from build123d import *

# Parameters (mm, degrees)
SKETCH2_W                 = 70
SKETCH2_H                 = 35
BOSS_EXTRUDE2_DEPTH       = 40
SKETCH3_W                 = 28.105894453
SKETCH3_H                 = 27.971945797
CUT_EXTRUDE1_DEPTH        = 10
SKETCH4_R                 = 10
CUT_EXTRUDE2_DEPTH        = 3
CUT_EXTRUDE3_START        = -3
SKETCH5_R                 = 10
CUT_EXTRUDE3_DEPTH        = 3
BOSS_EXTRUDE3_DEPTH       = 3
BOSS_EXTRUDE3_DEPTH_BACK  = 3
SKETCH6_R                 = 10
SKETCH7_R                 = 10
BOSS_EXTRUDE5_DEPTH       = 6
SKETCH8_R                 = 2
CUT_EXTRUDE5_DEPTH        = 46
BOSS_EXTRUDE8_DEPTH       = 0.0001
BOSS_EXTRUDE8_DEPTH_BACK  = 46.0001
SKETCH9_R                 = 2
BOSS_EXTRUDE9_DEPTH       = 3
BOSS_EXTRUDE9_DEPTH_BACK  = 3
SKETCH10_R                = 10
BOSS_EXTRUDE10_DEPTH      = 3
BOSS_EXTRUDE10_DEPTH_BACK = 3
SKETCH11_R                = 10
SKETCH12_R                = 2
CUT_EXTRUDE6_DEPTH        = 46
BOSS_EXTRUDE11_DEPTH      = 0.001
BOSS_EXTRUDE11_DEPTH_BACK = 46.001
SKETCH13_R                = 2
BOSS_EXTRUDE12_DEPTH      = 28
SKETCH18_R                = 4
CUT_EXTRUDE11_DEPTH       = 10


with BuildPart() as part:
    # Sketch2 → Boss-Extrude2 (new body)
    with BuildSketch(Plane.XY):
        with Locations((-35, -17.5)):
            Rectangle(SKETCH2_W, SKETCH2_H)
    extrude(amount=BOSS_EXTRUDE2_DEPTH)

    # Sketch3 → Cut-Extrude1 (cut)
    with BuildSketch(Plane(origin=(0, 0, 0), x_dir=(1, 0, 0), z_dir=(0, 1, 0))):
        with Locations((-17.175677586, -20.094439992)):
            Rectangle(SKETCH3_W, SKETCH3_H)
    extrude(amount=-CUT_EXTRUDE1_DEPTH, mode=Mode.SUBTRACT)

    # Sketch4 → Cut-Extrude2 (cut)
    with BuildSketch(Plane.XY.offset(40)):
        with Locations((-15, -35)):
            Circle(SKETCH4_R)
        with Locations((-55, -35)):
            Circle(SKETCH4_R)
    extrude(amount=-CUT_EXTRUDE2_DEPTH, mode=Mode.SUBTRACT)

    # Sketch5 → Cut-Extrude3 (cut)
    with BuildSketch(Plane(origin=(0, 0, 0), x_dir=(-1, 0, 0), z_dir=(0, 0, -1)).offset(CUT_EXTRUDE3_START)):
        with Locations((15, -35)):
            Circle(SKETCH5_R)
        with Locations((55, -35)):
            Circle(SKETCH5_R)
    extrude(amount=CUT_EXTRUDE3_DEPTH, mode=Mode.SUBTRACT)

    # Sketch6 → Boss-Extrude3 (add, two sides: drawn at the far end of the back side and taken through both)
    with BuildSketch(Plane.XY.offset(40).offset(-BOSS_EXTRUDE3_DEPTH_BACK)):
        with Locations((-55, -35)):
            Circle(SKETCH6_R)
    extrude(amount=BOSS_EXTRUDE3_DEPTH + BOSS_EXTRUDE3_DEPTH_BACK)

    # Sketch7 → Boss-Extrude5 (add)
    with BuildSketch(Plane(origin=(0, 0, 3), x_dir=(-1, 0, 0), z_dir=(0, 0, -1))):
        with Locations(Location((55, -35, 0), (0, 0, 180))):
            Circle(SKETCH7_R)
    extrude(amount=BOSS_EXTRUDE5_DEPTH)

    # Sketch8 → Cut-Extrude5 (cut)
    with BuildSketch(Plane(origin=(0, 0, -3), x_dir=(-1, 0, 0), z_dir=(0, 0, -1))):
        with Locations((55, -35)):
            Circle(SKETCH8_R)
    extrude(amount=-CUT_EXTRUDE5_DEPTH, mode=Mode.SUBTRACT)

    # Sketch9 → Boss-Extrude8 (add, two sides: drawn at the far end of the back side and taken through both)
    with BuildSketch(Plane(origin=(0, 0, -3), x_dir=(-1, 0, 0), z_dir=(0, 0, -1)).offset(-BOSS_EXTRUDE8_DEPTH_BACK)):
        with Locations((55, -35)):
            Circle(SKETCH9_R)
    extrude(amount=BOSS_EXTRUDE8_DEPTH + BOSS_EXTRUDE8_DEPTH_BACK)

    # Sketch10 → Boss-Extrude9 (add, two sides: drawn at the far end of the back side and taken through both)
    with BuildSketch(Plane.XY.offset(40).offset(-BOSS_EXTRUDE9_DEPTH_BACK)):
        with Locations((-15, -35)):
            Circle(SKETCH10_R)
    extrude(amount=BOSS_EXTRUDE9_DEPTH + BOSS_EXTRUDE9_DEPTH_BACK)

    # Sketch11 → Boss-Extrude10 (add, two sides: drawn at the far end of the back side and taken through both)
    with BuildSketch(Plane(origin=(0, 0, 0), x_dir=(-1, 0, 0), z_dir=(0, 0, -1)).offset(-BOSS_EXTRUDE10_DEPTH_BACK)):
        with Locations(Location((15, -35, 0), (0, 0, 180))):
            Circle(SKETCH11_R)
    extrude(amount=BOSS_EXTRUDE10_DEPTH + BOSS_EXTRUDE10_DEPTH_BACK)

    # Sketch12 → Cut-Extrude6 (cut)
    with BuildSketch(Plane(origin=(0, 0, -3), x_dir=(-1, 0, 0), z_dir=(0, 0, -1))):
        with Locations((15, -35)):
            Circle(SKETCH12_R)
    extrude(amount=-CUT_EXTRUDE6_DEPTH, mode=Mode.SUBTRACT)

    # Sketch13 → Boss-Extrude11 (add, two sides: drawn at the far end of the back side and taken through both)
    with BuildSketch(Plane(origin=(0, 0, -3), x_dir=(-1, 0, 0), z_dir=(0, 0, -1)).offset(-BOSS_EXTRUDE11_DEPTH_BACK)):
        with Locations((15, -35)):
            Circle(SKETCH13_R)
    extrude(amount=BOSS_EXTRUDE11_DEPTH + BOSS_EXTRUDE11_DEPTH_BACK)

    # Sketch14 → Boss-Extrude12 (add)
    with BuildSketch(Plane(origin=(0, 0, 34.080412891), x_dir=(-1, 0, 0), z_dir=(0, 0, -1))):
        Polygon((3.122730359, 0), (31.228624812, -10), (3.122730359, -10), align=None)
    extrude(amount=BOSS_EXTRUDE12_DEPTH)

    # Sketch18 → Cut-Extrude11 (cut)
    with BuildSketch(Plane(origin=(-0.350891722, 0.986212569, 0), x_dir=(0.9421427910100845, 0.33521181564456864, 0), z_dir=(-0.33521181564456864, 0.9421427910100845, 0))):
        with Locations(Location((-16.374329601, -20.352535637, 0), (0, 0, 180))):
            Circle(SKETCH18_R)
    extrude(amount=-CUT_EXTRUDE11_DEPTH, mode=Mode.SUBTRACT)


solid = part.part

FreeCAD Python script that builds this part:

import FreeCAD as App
import Part
import Sketcher

V = App.Vector
Q = App.Units.Quantity

doc = App.newDocument("Part")
body = doc.addObject("PartDesign::Body", "Body")

# Sketch on XY plane
sketch1 = doc.addObject("Sketcher::SketchObject", "Sketch")
body.addObject(sketch1)
sketch1.AttachmentSupport = (doc.XY_Plane, [""])
sketch1.MapMode = "FlatFace"
sketch1.addGeometry([
    Part.LineSegment(V(-70, 0, 0), V(-70, -35, 0)),
    Part.LineSegment(V(-70, -35, 0), V(0, -35, 0)),
    Part.LineSegment(V(0, -35, 0), V(0, 0, 0)),
    Part.LineSegment(V(0, 0, 0), V(-70, 0, 0)),
], False)
sketch1.addConstraint([
    Sketcher.Constraint("Coincident", 0, 2, 1, 1),
    Sketcher.Constraint("Coincident", 1, 2, 2, 1),
    Sketcher.Constraint("Coincident", 2, 2, 3, 1),
    Sketcher.Constraint("Coincident", 3, 2, 0, 1),
    Sketcher.Constraint("Vertical", 0),
    Sketcher.Constraint("Horizontal", 1),
    Sketcher.Constraint("Vertical", 2),
    Sketcher.Constraint("Horizontal", 3),
    Sketcher.Constraint("Coincident", 2, 2, -1, 1),
    Sketcher.Constraint("DistanceX", 1, 1, 1, 2, Q("70 mm")),
    Sketcher.Constraint("DistanceY", 0, 2, 0, 1, Q("35 mm")),
])
pad1 = doc.addObject("PartDesign::Pad", "Pad")
body.addObject(pad1)
pad1.Profile = sketch1
pad1.Length = 40

# Sketch on XZ plane
sketch2 = doc.addObject("Sketcher::SketchObject", "Sketch001")
body.addObject(sketch2)
sketch2.AttachmentSupport = (doc.XZ_Plane, [""])
sketch2.MapMode = "FlatFace"
sketch2.addGeometry([
    Part.LineSegment(V(-31, 6, 0), V(-31, 34, 0)),
    Part.LineSegment(V(-31, 34, 0), V(-3, 34, 0)),
    Part.LineSegment(V(-3, 34, 0), V(-3, 6, 0)),
    Part.LineSegment(V(-3, 6, 0), V(-31, 6, 0)),
], False)
sketch2.addConstraint([
    Sketcher.Constraint("Coincident", 0, 2, 1, 1),
    Sketcher.Constraint("Coincident", 1, 2, 2, 1),
    Sketcher.Constraint("Coincident", 2, 2, 3, 1),
    Sketcher.Constraint("Coincident", 3, 2, 0, 1),
    Sketcher.Constraint("Vertical", 0),
    Sketcher.Constraint("Horizontal", 1),
    Sketcher.Constraint("Vertical", 2),
    Sketcher.Constraint("Horizontal", 3),
    Sketcher.Constraint("DistanceX", 1, 1, 1, 2, Q("28.105894 mm")),
    Sketcher.Constraint("DistanceY", 0, 1, 0, 2, Q("27.971946 mm")),
    Sketcher.Constraint("DistanceX", 1, 2, -1, 1, Q("3.12273 mm")),
    Sketcher.Constraint("DistanceY", -1, 1, 0, 2, Q("34.080413 mm")),
])
pocket1 = doc.addObject("PartDesign::Pocket", "Pocket")
body.addObject(pocket1)
pocket1.Profile = sketch2
pocket1.Length = 10
pocket1.Reversed = True

# Sketch on XY plane
sketch3 = doc.addObject("Sketcher::SketchObject", "Sketch002")
body.addObject(sketch3)
sketch3.AttachmentSupport = (doc.XY_Plane, [""])
sketch3.MapMode = "FlatFace"
sketch3.AttachmentOffset = App.Placement(V(0, 0, 40), App.Rotation())
sketch3.addGeometry([
    Part.Circle(V(-15, -35, 0), V(0, 0, 1), 10),
    Part.Circle(V(-55, -35, 0), V(0, 0, 1), 10),
], False)
sketch3.addConstraint([
    Sketcher.Constraint("Equal", 0, 1),
    Sketcher.Constraint("Horizontal", 0, 3, 1, 3),
    Sketcher.Constraint("Diameter", 0, Q("20 mm")),
    Sketcher.Constraint("DistanceX", 0, 3, -1, 1, Q("15 mm")),
    Sketcher.Constraint("DistanceY", 0, 3, -1, 1, Q("35 mm")),
    Sketcher.Constraint("DistanceX", 1, 3, -1, 1, Q("55 mm")),
])
pocket2 = doc.addObject("PartDesign::Pocket", "Pocket001")
body.addObject(pocket2)
pocket2.Profile = sketch3
pocket2.Length = 3

# Sketch on XY plane
sketch4 = doc.addObject("Sketcher::SketchObject", "Sketch003")
body.addObject(sketch4)
sketch4.AttachmentSupport = (doc.XY_Plane, [""])
sketch4.MapMode = "FlatFace"
sketch4.AttachmentOffset = App.Placement(V(0, 0, 3), App.Rotation())
sketch4.addGeometry([
    Part.Circle(V(-15, -35, 0), V(0, 0, 1), 10),
    Part.Circle(V(-55, -35, 0), V(0, 0, 1), 10),
], False)
sketch4.addConstraint([
    Sketcher.Constraint("Equal", 0, 1),
    Sketcher.Constraint("Horizontal", 0, 3, 1, 3),
    Sketcher.Constraint("Diameter", 0, Q("20 mm")),
    Sketcher.Constraint("DistanceX", 0, 3, -1, 1, Q("15 mm")),
    Sketcher.Constraint("DistanceY", 0, 3, -1, 1, Q("35 mm")),
    Sketcher.Constraint("DistanceX", 1, 3, -1, 1, Q("55 mm")),
])
pocket3 = doc.addObject("PartDesign::Pocket", "Pocket002")
body.addObject(pocket3)
pocket3.Profile = sketch4
pocket3.Length = 3

# Sketch on XY plane
sketch5 = doc.addObject("Sketcher::SketchObject", "Sketch004")
body.addObject(sketch5)
sketch5.AttachmentSupport = (doc.XY_Plane, [""])
sketch5.MapMode = "FlatFace"
sketch5.AttachmentOffset = App.Placement(V(0, 0, 40), App.Rotation())
sketch5.addGeometry(Part.Circle(V(-55, -35, 0), V(0, 0, 1), 10), False)
sketch5.addConstraint([
    Sketcher.Constraint("Diameter", 0, Q("20 mm")),
    Sketcher.Constraint("DistanceX", 0, 3, -1, 1, Q("55 mm")),
    Sketcher.Constraint("DistanceY", 0, 3, -1, 1, Q("35 mm")),
])
pad2 = doc.addObject("PartDesign::Pad", "Pad001")
body.addObject(pad2)
pad2.Profile = sketch5
pad2.Type = "TwoLengths"
pad2.Length = 3
pad2.Length2 = 3

# Sketch on XY plane
sketch6 = doc.addObject("Sketcher::SketchObject", "Sketch005")
body.addObject(sketch6)
sketch6.AttachmentSupport = (doc.XY_Plane, [""])
sketch6.MapMode = "FlatFace"
sketch6.AttachmentOffset = App.Placement(V(0, 0, 3), App.Rotation())
sketch6.addGeometry(Part.Circle(V(-55, -35, 0), V(0, 0, 1), 10), False)
sketch6.addConstraint([
    Sketcher.Constraint("Diameter", 0, Q("20 mm")),
    Sketcher.Constraint("DistanceX", 0, 3, -1, 1, Q("55 mm")),
    Sketcher.Constraint("DistanceY", 0, 3, -1, 1, Q("35 mm")),
])
pad3 = doc.addObject("PartDesign::Pad", "Pad002")
body.addObject(pad3)
pad3.Profile = sketch6
pad3.Length = 6
pad3.Reversed = True

# Sketch on XY plane
sketch7 = doc.addObject("Sketcher::SketchObject", "Sketch006")
body.addObject(sketch7)
sketch7.AttachmentSupport = (doc.XY_Plane, [""])
sketch7.MapMode = "FlatFace"
sketch7.AttachmentOffset = App.Placement(V(0, 0, -3), App.Rotation())
sketch7.addGeometry(Part.Circle(V(-55, -35, 0), V(0, 0, 1), 2), False)
sketch7.addConstraint([
    Sketcher.Constraint("Diameter", 0, Q("4 mm")),
    Sketcher.Constraint("DistanceX", 0, 3, -1, 1, Q("55 mm")),
    Sketcher.Constraint("DistanceY", 0, 3, -1, 1, Q("35 mm")),
])
pocket4 = doc.addObject("PartDesign::Pocket", "Pocket003")
body.addObject(pocket4)
pocket4.Profile = sketch7
pocket4.Length = 46
pocket4.Reversed = True

# Sketch on XY plane
sketch8 = doc.addObject("Sketcher::SketchObject", "Sketch007")
body.addObject(sketch8)
sketch8.AttachmentSupport = (doc.XY_Plane, [""])
sketch8.MapMode = "FlatFace"
sketch8.AttachmentOffset = App.Placement(V(0, 0, -3), App.Rotation())
sketch8.addGeometry(Part.Circle(V(-55, -35, 0), V(0, 0, 1), 2), False)
sketch8.addConstraint([
    Sketcher.Constraint("Diameter", 0, Q("4 mm")),
    Sketcher.Constraint("DistanceX", 0, 3, -1, 1, Q("55 mm")),
    Sketcher.Constraint("DistanceY", 0, 3, -1, 1, Q("35 mm")),
])
pad4 = doc.addObject("PartDesign::Pad", "Pad003")
body.addObject(pad4)
pad4.Profile = sketch8
pad4.Type = "TwoLengths"
pad4.Length = 0.0001
pad4.Length2 = 46.0001
pad4.Reversed = True

# Sketch on XY plane
sketch9 = doc.addObject("Sketcher::SketchObject", "Sketch008")
body.addObject(sketch9)
sketch9.AttachmentSupport = (doc.XY_Plane, [""])
sketch9.MapMode = "FlatFace"
sketch9.AttachmentOffset = App.Placement(V(0, 0, 40), App.Rotation())
sketch9.addGeometry(Part.Circle(V(-15, -35, 0), V(0, 0, 1), 10), False)
sketch9.addConstraint([
    Sketcher.Constraint("Diameter", 0, Q("20 mm")),
    Sketcher.Constraint("DistanceX", 0, 3, -1, 1, Q("15 mm")),
    Sketcher.Constraint("DistanceY", 0, 3, -1, 1, Q("35 mm")),
])
pad5 = doc.addObject("PartDesign::Pad", "Pad004")
body.addObject(pad5)
pad5.Profile = sketch9
pad5.Type = "TwoLengths"
pad5.Length = 3
pad5.Length2 = 3

# Sketch on XY plane
sketch10 = doc.addObject("Sketcher::SketchObject", "Sketch009")
body.addObject(sketch10)
sketch10.AttachmentSupport = (doc.XY_Plane, [""])
sketch10.MapMode = "FlatFace"
sketch10.addGeometry(Part.Circle(V(-15, -35, 0), V(0, 0, 1), 10), False)
sketch10.addConstraint([
    Sketcher.Constraint("Diameter", 0, Q("20 mm")),
    Sketcher.Constraint("DistanceX", 0, 3, -1, 1, Q("15 mm")),
    Sketcher.Constraint("DistanceY", 0, 3, -1, 1, Q("35 mm")),
])
pad6 = doc.addObject("PartDesign::Pad", "Pad005")
body.addObject(pad6)
pad6.Profile = sketch10
pad6.Type = "TwoLengths"
pad6.Length = 3
pad6.Length2 = 3
pad6.Reversed = True

# Sketch on XY plane
sketch11 = doc.addObject("Sketcher::SketchObject", "Sketch010")
body.addObject(sketch11)
sketch11.AttachmentSupport = (doc.XY_Plane, [""])
sketch11.MapMode = "FlatFace"
sketch11.AttachmentOffset = App.Placement(V(0, 0, -3), App.Rotation())
sketch11.addGeometry(Part.Circle(V(-15, -35, 0), V(0, 0, 1), 2), False)
sketch11.addConstraint([
    Sketcher.Constraint("Diameter", 0, Q("4 mm")),
    Sketcher.Constraint("DistanceX", 0, 3, -1, 1, Q("15 mm")),
    Sketcher.Constraint("DistanceY", 0, 3, -1, 1, Q("35 mm")),
])
pocket5 = doc.addObject("PartDesign::Pocket", "Pocket004")
body.addObject(pocket5)
pocket5.Profile = sketch11
pocket5.Length = 46
pocket5.Reversed = True

# Sketch on XY plane
sketch12 = doc.addObject("Sketcher::SketchObject", "Sketch011")
body.addObject(sketch12)
sketch12.AttachmentSupport = (doc.XY_Plane, [""])
sketch12.MapMode = "FlatFace"
sketch12.AttachmentOffset = App.Placement(V(0, 0, -3), App.Rotation())
sketch12.addGeometry(Part.Circle(V(-15, -35, 0), V(0, 0, 1), 2), False)
sketch12.addConstraint([
    Sketcher.Constraint("Diameter", 0, Q("4 mm")),
    Sketcher.Constraint("DistanceX", 0, 3, -1, 1, Q("15 mm")),
    Sketcher.Constraint("DistanceY", 0, 3, -1, 1, Q("35 mm")),
])
pad7 = doc.addObject("PartDesign::Pad", "Pad006")
body.addObject(pad7)
pad7.Profile = sketch12
pad7.Type = "TwoLengths"
pad7.Length = 0.001
pad7.Length2 = 46.001
pad7.Reversed = True

# Sketch on XY plane
sketch13 = doc.addObject("Sketcher::SketchObject", "Sketch012")
body.addObject(sketch13)
sketch13.AttachmentSupport = (doc.XY_Plane, [""])
sketch13.MapMode = "FlatFace"
sketch13.AttachmentOffset = App.Placement(V(0, 0, 34.080413), App.Rotation())
sketch13.addGeometry([
    Part.LineSegment(V(-31, -10, 0), V(-3, 0, 0)),
    Part.LineSegment(V(-3, 0, 0), V(-3, -10, 0)),
    Part.LineSegment(V(-3, -10, 0), V(-31, -10, 0)),
], False)
sketch13.addConstraint([
    Sketcher.Constraint("Coincident", 0, 2, 1, 1),
    Sketcher.Constraint("Coincident", 1, 2, 2, 1),
    Sketcher.Constraint("Coincident", 2, 2, 0, 1),
    Sketcher.Constraint("Vertical", 1),
    Sketcher.Constraint("Horizontal", 2),
    Sketcher.Constraint("PointOnObject", 0, 2, -1),
    Sketcher.Constraint("DistanceY", 1, 2, 1, 1, Q("10 mm")),
    Sketcher.Constraint("DistanceX", 2, 2, 2, 1, Q("28.105894 mm")),
    Sketcher.Constraint("DistanceX", 0, 2, -1, 1, Q("3.12273 mm")),
])
pad8 = doc.addObject("PartDesign::Pad", "Pad007")
body.addObject(pad8)
pad8.Profile = sketch13
pad8.Length = 28
pad8.Reversed = True

# Sketch on an angled plane
sketch14 = doc.addObject("Sketcher::SketchObject", "Sketch013")
body.addObject(sketch14)
sketch14.Placement = App.Placement(V(-0.350892, 0.986213, 0), App.Rotation(V(0.942142791, 0.335211816, 0), V(0, 0, -1), V(-0.335211816, 0.942142791, 0), "ZXY"))
sketch14.addGeometry(Part.Circle(V(-16.4, -20.4, 0), V(0, 0, 1), 4), False)
sketch14.addConstraint([
    Sketcher.Constraint("Diameter", 0, Q("8 mm")),
    Sketcher.Constraint("DistanceX", 0, 3, -1, 1, Q("16.37433 mm")),
    Sketcher.Constraint("DistanceY", 0, 3, -1, 1, Q("20.352536 mm")),
])
pocket6 = doc.addObject("PartDesign::Pocket", "Pocket005")
body.addObject(pocket6)
pocket6.Profile = sketch14
pocket6.Length = 10

doc.recompute()
